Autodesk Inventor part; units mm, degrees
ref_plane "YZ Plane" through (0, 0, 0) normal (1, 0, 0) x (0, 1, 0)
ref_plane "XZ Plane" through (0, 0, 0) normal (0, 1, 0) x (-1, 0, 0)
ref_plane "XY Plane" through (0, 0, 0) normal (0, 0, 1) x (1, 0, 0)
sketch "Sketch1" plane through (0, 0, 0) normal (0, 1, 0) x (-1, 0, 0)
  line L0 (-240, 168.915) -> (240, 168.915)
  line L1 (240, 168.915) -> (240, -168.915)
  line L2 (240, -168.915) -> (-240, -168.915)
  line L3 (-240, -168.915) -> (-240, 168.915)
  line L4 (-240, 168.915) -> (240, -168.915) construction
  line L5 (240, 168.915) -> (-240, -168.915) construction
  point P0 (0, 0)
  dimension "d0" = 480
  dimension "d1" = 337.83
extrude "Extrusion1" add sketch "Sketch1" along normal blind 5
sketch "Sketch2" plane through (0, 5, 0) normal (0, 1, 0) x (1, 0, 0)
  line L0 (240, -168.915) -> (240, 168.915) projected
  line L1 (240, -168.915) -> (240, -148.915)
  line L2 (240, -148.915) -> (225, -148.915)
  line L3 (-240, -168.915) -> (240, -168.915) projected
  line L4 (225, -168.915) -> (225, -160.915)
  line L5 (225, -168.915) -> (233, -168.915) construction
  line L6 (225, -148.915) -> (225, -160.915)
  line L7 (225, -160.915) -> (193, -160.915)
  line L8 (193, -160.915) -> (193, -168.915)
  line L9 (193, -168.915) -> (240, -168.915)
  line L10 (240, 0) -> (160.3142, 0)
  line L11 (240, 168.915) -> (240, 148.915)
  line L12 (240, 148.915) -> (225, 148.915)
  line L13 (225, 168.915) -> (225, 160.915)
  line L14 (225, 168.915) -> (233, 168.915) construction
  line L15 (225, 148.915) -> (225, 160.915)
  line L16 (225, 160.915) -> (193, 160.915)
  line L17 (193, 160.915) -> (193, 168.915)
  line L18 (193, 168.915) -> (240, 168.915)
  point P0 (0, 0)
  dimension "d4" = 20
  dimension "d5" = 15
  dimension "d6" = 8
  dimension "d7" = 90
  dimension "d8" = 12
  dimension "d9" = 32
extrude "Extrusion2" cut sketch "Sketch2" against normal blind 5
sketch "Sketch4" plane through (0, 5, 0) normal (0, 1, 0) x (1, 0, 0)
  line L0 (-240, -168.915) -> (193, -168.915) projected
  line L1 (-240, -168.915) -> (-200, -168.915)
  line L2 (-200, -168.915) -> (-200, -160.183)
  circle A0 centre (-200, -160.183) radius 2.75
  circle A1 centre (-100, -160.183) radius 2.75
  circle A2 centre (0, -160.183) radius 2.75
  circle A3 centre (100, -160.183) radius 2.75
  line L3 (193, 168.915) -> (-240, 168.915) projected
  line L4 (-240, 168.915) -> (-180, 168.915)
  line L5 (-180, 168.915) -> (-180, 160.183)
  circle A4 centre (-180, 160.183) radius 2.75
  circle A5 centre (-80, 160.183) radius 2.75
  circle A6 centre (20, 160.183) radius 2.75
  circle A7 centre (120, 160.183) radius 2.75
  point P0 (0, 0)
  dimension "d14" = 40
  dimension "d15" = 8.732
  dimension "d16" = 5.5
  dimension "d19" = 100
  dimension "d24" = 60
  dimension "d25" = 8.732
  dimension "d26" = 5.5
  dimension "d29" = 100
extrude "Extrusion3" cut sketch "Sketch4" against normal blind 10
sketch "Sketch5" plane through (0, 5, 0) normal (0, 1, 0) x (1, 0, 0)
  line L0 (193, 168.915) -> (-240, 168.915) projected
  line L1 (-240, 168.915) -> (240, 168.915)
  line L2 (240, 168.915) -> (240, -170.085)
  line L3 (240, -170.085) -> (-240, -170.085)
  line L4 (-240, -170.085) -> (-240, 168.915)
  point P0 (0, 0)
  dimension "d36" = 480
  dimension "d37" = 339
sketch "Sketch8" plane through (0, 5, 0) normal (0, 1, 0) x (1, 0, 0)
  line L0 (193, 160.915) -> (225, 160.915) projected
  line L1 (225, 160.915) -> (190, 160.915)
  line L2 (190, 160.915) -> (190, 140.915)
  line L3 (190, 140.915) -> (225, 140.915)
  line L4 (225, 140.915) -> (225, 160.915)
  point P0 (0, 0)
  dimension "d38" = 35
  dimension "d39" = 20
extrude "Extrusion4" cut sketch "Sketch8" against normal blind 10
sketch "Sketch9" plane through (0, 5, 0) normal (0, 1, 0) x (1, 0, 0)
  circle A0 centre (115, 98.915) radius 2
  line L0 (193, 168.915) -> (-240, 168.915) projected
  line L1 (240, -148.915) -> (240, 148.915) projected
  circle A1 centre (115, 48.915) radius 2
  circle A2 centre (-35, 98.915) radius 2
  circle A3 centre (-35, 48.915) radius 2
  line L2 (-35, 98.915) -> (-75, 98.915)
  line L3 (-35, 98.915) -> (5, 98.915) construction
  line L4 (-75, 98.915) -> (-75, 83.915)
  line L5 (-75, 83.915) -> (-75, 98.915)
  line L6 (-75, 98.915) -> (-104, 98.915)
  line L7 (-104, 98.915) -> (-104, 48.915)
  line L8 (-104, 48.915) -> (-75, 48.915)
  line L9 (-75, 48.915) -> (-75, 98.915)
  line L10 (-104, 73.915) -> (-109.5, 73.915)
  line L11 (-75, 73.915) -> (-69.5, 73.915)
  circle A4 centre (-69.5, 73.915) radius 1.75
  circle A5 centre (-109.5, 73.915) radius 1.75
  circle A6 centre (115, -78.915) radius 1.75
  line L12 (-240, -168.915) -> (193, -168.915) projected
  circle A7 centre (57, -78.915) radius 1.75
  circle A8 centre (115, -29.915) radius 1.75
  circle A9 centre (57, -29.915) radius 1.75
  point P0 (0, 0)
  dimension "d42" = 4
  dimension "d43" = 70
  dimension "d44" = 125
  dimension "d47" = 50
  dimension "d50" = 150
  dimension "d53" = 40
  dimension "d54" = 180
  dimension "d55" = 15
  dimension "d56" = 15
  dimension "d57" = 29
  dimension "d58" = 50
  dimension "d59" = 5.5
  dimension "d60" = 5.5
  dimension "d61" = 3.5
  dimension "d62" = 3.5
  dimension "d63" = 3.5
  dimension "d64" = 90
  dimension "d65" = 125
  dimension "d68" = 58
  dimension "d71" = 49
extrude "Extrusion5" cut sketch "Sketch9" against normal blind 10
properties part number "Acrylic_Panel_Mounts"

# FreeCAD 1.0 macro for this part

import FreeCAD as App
import Part
import Sketcher
from FreeCAD import Vector
Q = App.Units.Quantity

doc = App.newDocument("Part")
body = doc.addObject("PartDesign::Body", "Body")

# Sketch on XZ plane
sketch1 = body.newObject("Sketcher::SketchObject", "Sketch")
sketch1.AttachmentSupport = (doc.getObject("XZ_Plane"), [""])
sketch1.MapMode = "FlatFace"
sketch1.addGeometry([
    Part.LineSegment(Vector(-240, 169, 0), Vector(240, 169, 0)),
    Part.LineSegment(Vector(240, 169, 0), Vector(240, -169, 0)),
    Part.LineSegment(Vector(240, -169, 0), Vector(-240, -169, 0)),
    Part.LineSegment(Vector(-240, -169, 0), Vector(-240, 169, 0)),
], False)
sketch1.addConstraint([
    Sketcher.Constraint("Coincident", 0, 2, 1, 1),
    Sketcher.Constraint("Coincident", 1, 2, 2, 1),
    Sketcher.Constraint("Coincident", 2, 2, 3, 1),
    Sketcher.Constraint("Coincident", 3, 2, 0, 1),
    Sketcher.Constraint("Horizontal", 0),
    Sketcher.Constraint("Vertical", 1),
    Sketcher.Constraint("Horizontal", 2),
    Sketcher.Constraint("Vertical", 3),
    Sketcher.Constraint("Symmetric", 0, 2, 2, 2, -1, 1),
    Sketcher.Constraint("DistanceX", 0, 1, 0, 2, Q("480 mm")),
    Sketcher.Constraint("DistanceY", 1, 2, 1, 1, Q("337.83 mm")),
])
pad1 = body.newObject("PartDesign::Pad", "Pad")
pad1.Profile = sketch1
pad1.Length = 5
pad1.Reversed = True

# Sketch on XZ plane
sketch2 = body.newObject("Sketcher::SketchObject", "Sketch001")
sketch2.AttachmentSupport = (doc.getObject("XZ_Plane"), [""])
sketch2.MapMode = "FlatFace"
sketch2.AttachmentOffset = App.Placement(Vector(0, 0, -5), App.Rotation())
sketch2.addGeometry([
    Part.LineSegment(Vector(240, 169, 0), Vector(240, 149, 0)),  # 0
    Part.LineSegment(Vector(240, 149, 0), Vector(225, 149, 0)),  # 1
    Part.LineSegment(Vector(225, 149, 0), Vector(225, 161, 0)),  # 2
    Part.LineSegment(Vector(225, 161, 0), Vector(193, 161, 0)),  # 3
    Part.LineSegment(Vector(193, 161, 0), Vector(193, 169, 0)),  # 4
    Part.LineSegment(Vector(193, 169, 0), Vector(240, 169, 0)),  # 5
    Part.LineSegment(Vector(225, -149, 0), Vector(240, -149, 0)),  # 6
    Part.LineSegment(Vector(240, -149, 0), Vector(240, -169, 0)),  # 7
    Part.LineSegment(Vector(240, -169, 0), Vector(193, -169, 0)),  # 8
    Part.LineSegment(Vector(193, -169, 0), Vector(193, -161, 0)),  # 9
    Part.LineSegment(Vector(193, -161, 0), Vector(225, -161, 0)),  # 10
    Part.LineSegment(Vector(225, -161, 0), Vector(225, -149, 0)),  # 11
], False)
sketch2.addConstraint([
    Sketcher.Constraint("Coincident", 0, 2, 1, 1),
    Sketcher.Constraint("Coincident", 1, 2, 2, 1),
    Sketcher.Constraint("Coincident", 2, 2, 3, 1),
    Sketcher.Constraint("Coincident", 3, 2, 4, 1),
    Sketcher.Constraint("Coincident", 4, 2, 5, 1),
    Sketcher.Constraint("Coincident", 5, 2, 0, 1),
    Sketcher.Constraint("Coincident", 6, 2, 7, 1),
    Sketcher.Constraint("Coincident", 7, 2, 8, 1),
    Sketcher.Constraint("Coincident", 8, 2, 9, 1),
    Sketcher.Constraint("Coincident", 9, 2, 10, 1),
    Sketcher.Constraint("Coincident", 10, 2, 11, 1),
    Sketcher.Constraint("Coincident", 11, 2, 6, 1),
    Sketcher.Constraint("Vertical", 0),
    Sketcher.Constraint("Horizontal", 1),
    Sketcher.Constraint("Vertical", 2),
    Sketcher.Constraint("Horizontal", 3),
    Sketcher.Constraint("Vertical", 4),
    Sketcher.Constraint("Horizontal", 5),
    Sketcher.Constraint("Horizontal", 6),
    Sketcher.Constraint("Vertical", 7),
    Sketcher.Constraint("Horizontal", 8),
    Sketcher.Constraint("Vertical", 9),
    Sketcher.Constraint("Horizontal", 10),
    Sketcher.Constraint("Vertical", 11),
    Sketcher.Constraint("Symmetric", 0, 2, 6, 2, -1),
    Sketcher.Constraint("Symmetric", 4, 2, 8, 2, -1),
    Sketcher.Constraint("Symmetric", 2, 2, 10, 2, -1),
    Sketcher.Constraint("DistanceX", 1, 2, 1, 1, Q("15 mm")),
    Sketcher.Constraint("DistanceX", 3, 2, 3, 1, Q("32 mm")),
    Sketcher.Constraint("DistanceY", 0, 2, 0, 1, Q("20 mm")),
    Sketcher.Constraint("DistanceY", 2, 1, 2, 2, Q("12 mm")),
    Sketcher.Constraint("DistanceX", -1, 1, 0, 2, Q("240 mm")),
    Sketcher.Constraint("DistanceY", 6, 2, 0, 2, Q("297.83 mm")),
])
pocket1 = body.newObject("PartDesign::Pocket", "Pocket")
pocket1.Profile = sketch2
pocket1.Length = 5
pocket1.Reversed = True

# Sketch on XZ plane
sketch3 = body.newObject("Sketcher::SketchObject", "Sketch002")
sketch3.AttachmentSupport = (doc.getObject("XZ_Plane"), [""])
sketch3.MapMode = "FlatFace"
sketch3.AttachmentOffset = App.Placement(Vector(0, 0, -5), App.Rotation())
sketch3.addGeometry([
    Part.Circle(Vector(-200, 160.2, 0), Vector(0, 0, 1), 2.8),  # 0
    Part.Circle(Vector(-100, 160.2, 0), Vector(0, 0, 1), 2.8),  # 1
    Part.Circle(Vector(0, 160.2, 0), Vector(0, 0, 1), 2.8),  # 2
    Part.Circle(Vector(100, 160.2, 0), Vector(0, 0, 1), 2.8),  # 3
    Part.Circle(Vector(-180, -160.2, 0), Vector(0, 0, 1), 2.8),  # 4
    Part.Circle(Vector(-80, -160.2, 0), Vector(0, 0, 1), 2.8),  # 5
    Part.Circle(Vector(20, -160.2, 0), Vector(0, 0, 1), 2.8),  # 6
    Part.Circle(Vector(120, -160.2, 0), Vector(0, 0, 1), 2.8),  # 7
], False)
sketch3.addConstraint([
    Sketcher.Constraint("Equal", 0, 1),
    Sketcher.Constraint("Equal", 1, 2),
    Sketcher.Constraint("Equal", 2, 3),
    Sketcher.Constraint("Equal", 3, 4),
    Sketcher.Constraint("Equal", 4, 5),
    Sketcher.Constraint("Equal", 5, 6),
    Sketcher.Constraint("Equal", 6, 7),
    Sketcher.Constraint("Symmetric", 1, 3, 3, 3, -2),
    Sketcher.Constraint("PointOnObject", 2, 3, -2),
    Sketcher.Constraint("Horizontal", 0, 3, 1, 3),
    Sketcher.Constraint("Horizontal", 1, 3, 2, 3),
    Sketcher.Constraint("Horizontal", 4, 3, 5, 3),
    Sketcher.Constraint("Horizontal", 5, 3, 6, 3),
    Sketcher.Constraint("Horizontal", 6, 3, 7, 3),
    Sketcher.Constraint("Diameter", 0, Q("5.5 mm")),
    Sketcher.Constraint("DistanceX", 1, 3, -1, 1, Q("100 mm")),
    Sketcher.Constraint("DistanceX", 0, 3, 1, 3, Q("100 mm")),
    Sketcher.Constraint("DistanceX", 4, 3, 5, 3, Q("100 mm")),
    Sketcher.Constraint("DistanceX", 5, 3, 6, 3, Q("100 mm")),
    Sketcher.Constraint("DistanceX", 6, 3, 7, 3, Q("100 mm")),
    Sketcher.Constraint("DistanceX", 4, 3, -1, 1, Q("180 mm")),
    Sketcher.Constraint("DistanceY", -1, 1, 0, 3, Q("160.183 mm")),
    Sketcher.Constraint("DistanceY", 4, 3, -1, 1, Q("160.183 mm")),
])
pocket2 = body.newObject("PartDesign::Pocket", "Pocket001")
pocket2.Profile = sketch3
pocket2.Length = 10
pocket2.Reversed = True

# Sketch on XZ plane
sketch4 = body.newObject("Sketcher::SketchObject", "Sketch003")
sketch4.AttachmentSupport = (doc.getObject("XZ_Plane"), [""])
sketch4.MapMode = "FlatFace"
sketch4.AttachmentOffset = App.Placement(Vector(0, 0, -5), App.Rotation())
sketch4.addGeometry([
    Part.LineSegment(Vector(225, -161, 0), Vector(190, -161, 0)),
    Part.LineSegment(Vector(190, -161, 0), Vector(190, -141, 0)),
    Part.LineSegment(Vector(190, -141, 0), Vector(225, -141, 0)),
    Part.LineSegment(Vector(225, -141, 0), Vector(225, -161, 0)),
], False)
sketch4.addConstraint([
    Sketcher.Constraint("Coincident", 0, 2, 1, 1),
    Sketcher.Constraint("Coincident", 1, 2, 2, 1),
    Sketcher.Constraint("Coincident", 2, 2, 3, 1),
    Sketcher.Constraint("Coincident", 3, 2, 0, 1),
    Sketcher.Constraint("Horizontal", 0),
    Sketcher.Constraint("Vertical", 1),
    Sketcher.Constraint("Horizontal", 2),
    Sketcher.Constraint("Vertical", 3),
    Sketcher.Constraint("DistanceX", 0, 2, 0, 1, Q("35 mm")),
    Sketcher.Constraint("DistanceY", 1, 1, 1, 2, Q("20 mm")),
    Sketcher.Constraint("DistanceX", -1, 1, 0, 2, Q("190 mm")),
    Sketcher.Constraint("DistanceY", 0, 2, -1, 1, Q("160.915 mm")),
])
pocket3 = body.newObject("PartDesign::Pocket", "Pocket002")
pocket3.Profile = sketch4
pocket3.Length = 10
pocket3.Reversed = True

# Sketch on XZ plane
sketch5 = body.newObject("Sketcher::SketchObject", "Sketch004")
sketch5.AttachmentSupport = (doc.getObject("XZ_Plane"), [""])
sketch5.MapMode = "FlatFace"
sketch5.AttachmentOffset = App.Placement(Vector(0, 0, -5), App.Rotation())
sketch5.addGeometry([
    Part.Circle(Vector(115, -98.9, 0), Vector(0, 0, 1), 2),  # 0
    Part.Circle(Vector(115, -48.9, 0), Vector(0, 0, 1), 2),  # 1
    Part.Circle(Vector(-35, -98.9, 0), Vector(0, 0, 1), 2),  # 2
    Part.Circle(Vector(-69.5, -73.9, 0), Vector(0, 0, 1), 1.8),  # 3
    Part.Circle(Vector(-109.5, -73.9, 0), Vector(0, 0, 1), 1.8),  # 4
    Part.LineSegment(Vector(-75, -48.9, 0), Vector(-75, -98.9, 0)),  # 5
    Part.LineSegment(Vector(-75, -98.9, 0), Vector(-104, -98.9, 0)),  # 6
    Part.LineSegment(Vector(-104, -98.9, 0), Vector(-104, -48.9, 0)),  # 7
    Part.LineSegment(Vector(-104, -48.9, 0), Vector(-75, -48.9, 0)),  # 8
    Part.Circle(Vector(-35, -48.9, 0), Vector(0, 0, 1), 2),  # 9
    Part.Circle(Vector(115, 78.9, 0), Vector(0, 0, 1), 1.8),  # 10
    Part.Circle(Vector(57, 78.9, 0), Vector(0, 0, 1), 1.8),  # 11
    Part.Circle(Vector(115, 29.9, 0), Vector(0, 0, 1), 1.8),  # 12
    Part.Circle(Vector(57, 29.9, 0), Vector(0, 0, 1), 1.8),  # 13
], False)
sketch5.addConstraint([
    Sketcher.Constraint("Coincident", 5, 2, 6, 1),
    Sketcher.Constraint("Coincident", 6, 2, 7, 1),
    Sketcher.Constraint("Coincident", 7, 2, 8, 1),
    Sketcher.Constraint("Coincident", 8, 2, 5, 1),
    Sketcher.Constraint("Vertical", 5),
    Sketcher.Constraint("Horizontal", 6),
    Sketcher.Constraint("Vertical", 7),
    Sketcher.Constraint("Horizontal", 8),
    Sketcher.Constraint("Equal", 0, 1),
    Sketcher.Constraint("Equal", 1, 2),
    Sketcher.Constraint("Equal", 3, 4),
    Sketcher.Constraint("Equal", 2, 9),
    Sketcher.Constraint("Equal", 4, 10),
    Sketcher.Constraint("Equal", 10, 11),
    Sketcher.Constraint("Equal", 11, 12),
    Sketcher.Constraint("Equal", 12, 13),
    Sketcher.Constraint("Horizontal", 0, 3, 2, 3),
    Sketcher.Constraint("Horizontal", 3, 3, 4, 3),
    Sketcher.Constraint("Horizontal", 1, 3, 9, 3),
    Sketcher.Constraint("Horizontal", 10, 3, 11, 3),
    Sketcher.Constraint("Horizontal", 12, 3, 13, 3),
    Sketcher.Constraint("Horizontal", 2, 3, 5, 2),
    Sketcher.Constraint("Horizontal", 9, 3, 7, 2),
    Sketcher.Constraint("Vertical", 0, 3, 1, 3),
    Sketcher.Constraint("Vertical", 2, 3, 9, 3),
    Sketcher.Constraint("Vertical", 1, 3, 10, 3),
    Sketcher.Constraint("Vertical", 10, 3, 12, 3),
    Sketcher.Constraint("Vertical", 11, 3, 13, 3),
    Sketcher.Constraint("Diameter", 0, Q("4 mm")),
    Sketcher.Constraint("Diameter", 3, Q("3.5 mm")),
    Sketcher.Constraint("DistanceX", 6, 2, 6, 1, Q("29 mm")),
    Sketcher.Constraint("DistanceY", 5, 2, 5, 1, Q("50 mm")),
    Sketcher.Constraint("DistanceX", 2, 3, 0, 3, Q("150 mm")),
    Sketcher.Constraint("DistanceX", 4, 3, 3, 3, Q("40 mm")),
    Sketcher.Constraint("DistanceX", 11, 3, 10, 3, Q("58 mm")),
    Sketcher.Constraint("DistanceY", 12, 3, 10, 3, Q("49 mm")),
    Sketcher.Constraint("DistanceX", 5, 2, 2, 3, Q("40 mm")),
    Sketcher.Constraint("DistanceX", 5, 2, 3, 3, Q("5.5 mm")),
    Sketcher.Constraint("DistanceX", -1, 1, 0, 3, Q("115 mm")),
    Sketcher.Constraint("DistanceY", 2, 3, 3, 3, Q("25 mm")),
    Sketcher.Constraint("DistanceY", 1, 3, 10, 3, Q("127.83 mm")),
    Sketcher.Constraint("DistanceY", 0, 3, -1, 1, Q("98.915 mm")),
])
pocket4 = body.newObject("PartDesign::Pocket", "Pocket003")
pocket4.Profile = sketch5
pocket4.Length = 10
pocket4.Reversed = True

doc.recompute()
